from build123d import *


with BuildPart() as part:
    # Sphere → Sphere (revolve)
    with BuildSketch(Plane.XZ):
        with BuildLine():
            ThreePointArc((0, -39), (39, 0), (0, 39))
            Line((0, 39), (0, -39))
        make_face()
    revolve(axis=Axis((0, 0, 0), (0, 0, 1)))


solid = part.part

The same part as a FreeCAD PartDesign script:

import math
import FreeCAD as App
import Part
import Sketcher
from FreeCAD import Vector

doc = App.newDocument("Part")
params = doc.addObject("Spreadsheet::Sheet", "Params")
for row, (alias, value) in enumerate([
    ("sketch1_radius", "39 mm"),
    ("revolution_angle", "360 deg"),
], start=1):
    params.set(f"A{row}", alias)
    params.set(f"B{row}", "=" + value)
    params.setAlias(f"B{row}", alias)

body = doc.addObject("PartDesign::Body", "Body")

sketch1 = body.newObject("Sketcher::SketchObject", "Sketch")
sketch1.AttachmentSupport = (doc.getObject("XZ_Plane"), [""])
sketch1.MapMode = "FlatFace"
sketch1.addGeometry([
    Part.ArcOfCircle(Part.Circle(Vector(0, 0, 0), Vector(0, 0, 1), 39), math.radians(-90), math.radians(90)),
    Part.LineSegment(Vector(0, 39, 0), Vector(0, -39, 0)),
], False)
sketch1.addConstraint([
    Sketcher.Constraint("Coincident", 0, 1, 1, 2),
    Sketcher.Constraint("Coincident", 1, 1, 0, 2),
    Sketcher.Constraint("Vertical", 1),
    Sketcher.Constraint("Coincident", 0, 3, -1, 1),
    Sketcher.Constraint("PointOnObject", 0, 1, -2),
    Sketcher.Constraint("Radius", 0, 39.0),
])
sketch1.setExpression("Constraints[5]", "Params.sketch1_radius")
revolution = body.newObject("PartDesign::Revolution", "Revolution")
revolution.Profile = sketch1
revolution.ReferenceAxis = (sketch1, ["V_Axis"])
revolution.setExpression("Angle", "Params.revolution_angle")

doc.recompute()
